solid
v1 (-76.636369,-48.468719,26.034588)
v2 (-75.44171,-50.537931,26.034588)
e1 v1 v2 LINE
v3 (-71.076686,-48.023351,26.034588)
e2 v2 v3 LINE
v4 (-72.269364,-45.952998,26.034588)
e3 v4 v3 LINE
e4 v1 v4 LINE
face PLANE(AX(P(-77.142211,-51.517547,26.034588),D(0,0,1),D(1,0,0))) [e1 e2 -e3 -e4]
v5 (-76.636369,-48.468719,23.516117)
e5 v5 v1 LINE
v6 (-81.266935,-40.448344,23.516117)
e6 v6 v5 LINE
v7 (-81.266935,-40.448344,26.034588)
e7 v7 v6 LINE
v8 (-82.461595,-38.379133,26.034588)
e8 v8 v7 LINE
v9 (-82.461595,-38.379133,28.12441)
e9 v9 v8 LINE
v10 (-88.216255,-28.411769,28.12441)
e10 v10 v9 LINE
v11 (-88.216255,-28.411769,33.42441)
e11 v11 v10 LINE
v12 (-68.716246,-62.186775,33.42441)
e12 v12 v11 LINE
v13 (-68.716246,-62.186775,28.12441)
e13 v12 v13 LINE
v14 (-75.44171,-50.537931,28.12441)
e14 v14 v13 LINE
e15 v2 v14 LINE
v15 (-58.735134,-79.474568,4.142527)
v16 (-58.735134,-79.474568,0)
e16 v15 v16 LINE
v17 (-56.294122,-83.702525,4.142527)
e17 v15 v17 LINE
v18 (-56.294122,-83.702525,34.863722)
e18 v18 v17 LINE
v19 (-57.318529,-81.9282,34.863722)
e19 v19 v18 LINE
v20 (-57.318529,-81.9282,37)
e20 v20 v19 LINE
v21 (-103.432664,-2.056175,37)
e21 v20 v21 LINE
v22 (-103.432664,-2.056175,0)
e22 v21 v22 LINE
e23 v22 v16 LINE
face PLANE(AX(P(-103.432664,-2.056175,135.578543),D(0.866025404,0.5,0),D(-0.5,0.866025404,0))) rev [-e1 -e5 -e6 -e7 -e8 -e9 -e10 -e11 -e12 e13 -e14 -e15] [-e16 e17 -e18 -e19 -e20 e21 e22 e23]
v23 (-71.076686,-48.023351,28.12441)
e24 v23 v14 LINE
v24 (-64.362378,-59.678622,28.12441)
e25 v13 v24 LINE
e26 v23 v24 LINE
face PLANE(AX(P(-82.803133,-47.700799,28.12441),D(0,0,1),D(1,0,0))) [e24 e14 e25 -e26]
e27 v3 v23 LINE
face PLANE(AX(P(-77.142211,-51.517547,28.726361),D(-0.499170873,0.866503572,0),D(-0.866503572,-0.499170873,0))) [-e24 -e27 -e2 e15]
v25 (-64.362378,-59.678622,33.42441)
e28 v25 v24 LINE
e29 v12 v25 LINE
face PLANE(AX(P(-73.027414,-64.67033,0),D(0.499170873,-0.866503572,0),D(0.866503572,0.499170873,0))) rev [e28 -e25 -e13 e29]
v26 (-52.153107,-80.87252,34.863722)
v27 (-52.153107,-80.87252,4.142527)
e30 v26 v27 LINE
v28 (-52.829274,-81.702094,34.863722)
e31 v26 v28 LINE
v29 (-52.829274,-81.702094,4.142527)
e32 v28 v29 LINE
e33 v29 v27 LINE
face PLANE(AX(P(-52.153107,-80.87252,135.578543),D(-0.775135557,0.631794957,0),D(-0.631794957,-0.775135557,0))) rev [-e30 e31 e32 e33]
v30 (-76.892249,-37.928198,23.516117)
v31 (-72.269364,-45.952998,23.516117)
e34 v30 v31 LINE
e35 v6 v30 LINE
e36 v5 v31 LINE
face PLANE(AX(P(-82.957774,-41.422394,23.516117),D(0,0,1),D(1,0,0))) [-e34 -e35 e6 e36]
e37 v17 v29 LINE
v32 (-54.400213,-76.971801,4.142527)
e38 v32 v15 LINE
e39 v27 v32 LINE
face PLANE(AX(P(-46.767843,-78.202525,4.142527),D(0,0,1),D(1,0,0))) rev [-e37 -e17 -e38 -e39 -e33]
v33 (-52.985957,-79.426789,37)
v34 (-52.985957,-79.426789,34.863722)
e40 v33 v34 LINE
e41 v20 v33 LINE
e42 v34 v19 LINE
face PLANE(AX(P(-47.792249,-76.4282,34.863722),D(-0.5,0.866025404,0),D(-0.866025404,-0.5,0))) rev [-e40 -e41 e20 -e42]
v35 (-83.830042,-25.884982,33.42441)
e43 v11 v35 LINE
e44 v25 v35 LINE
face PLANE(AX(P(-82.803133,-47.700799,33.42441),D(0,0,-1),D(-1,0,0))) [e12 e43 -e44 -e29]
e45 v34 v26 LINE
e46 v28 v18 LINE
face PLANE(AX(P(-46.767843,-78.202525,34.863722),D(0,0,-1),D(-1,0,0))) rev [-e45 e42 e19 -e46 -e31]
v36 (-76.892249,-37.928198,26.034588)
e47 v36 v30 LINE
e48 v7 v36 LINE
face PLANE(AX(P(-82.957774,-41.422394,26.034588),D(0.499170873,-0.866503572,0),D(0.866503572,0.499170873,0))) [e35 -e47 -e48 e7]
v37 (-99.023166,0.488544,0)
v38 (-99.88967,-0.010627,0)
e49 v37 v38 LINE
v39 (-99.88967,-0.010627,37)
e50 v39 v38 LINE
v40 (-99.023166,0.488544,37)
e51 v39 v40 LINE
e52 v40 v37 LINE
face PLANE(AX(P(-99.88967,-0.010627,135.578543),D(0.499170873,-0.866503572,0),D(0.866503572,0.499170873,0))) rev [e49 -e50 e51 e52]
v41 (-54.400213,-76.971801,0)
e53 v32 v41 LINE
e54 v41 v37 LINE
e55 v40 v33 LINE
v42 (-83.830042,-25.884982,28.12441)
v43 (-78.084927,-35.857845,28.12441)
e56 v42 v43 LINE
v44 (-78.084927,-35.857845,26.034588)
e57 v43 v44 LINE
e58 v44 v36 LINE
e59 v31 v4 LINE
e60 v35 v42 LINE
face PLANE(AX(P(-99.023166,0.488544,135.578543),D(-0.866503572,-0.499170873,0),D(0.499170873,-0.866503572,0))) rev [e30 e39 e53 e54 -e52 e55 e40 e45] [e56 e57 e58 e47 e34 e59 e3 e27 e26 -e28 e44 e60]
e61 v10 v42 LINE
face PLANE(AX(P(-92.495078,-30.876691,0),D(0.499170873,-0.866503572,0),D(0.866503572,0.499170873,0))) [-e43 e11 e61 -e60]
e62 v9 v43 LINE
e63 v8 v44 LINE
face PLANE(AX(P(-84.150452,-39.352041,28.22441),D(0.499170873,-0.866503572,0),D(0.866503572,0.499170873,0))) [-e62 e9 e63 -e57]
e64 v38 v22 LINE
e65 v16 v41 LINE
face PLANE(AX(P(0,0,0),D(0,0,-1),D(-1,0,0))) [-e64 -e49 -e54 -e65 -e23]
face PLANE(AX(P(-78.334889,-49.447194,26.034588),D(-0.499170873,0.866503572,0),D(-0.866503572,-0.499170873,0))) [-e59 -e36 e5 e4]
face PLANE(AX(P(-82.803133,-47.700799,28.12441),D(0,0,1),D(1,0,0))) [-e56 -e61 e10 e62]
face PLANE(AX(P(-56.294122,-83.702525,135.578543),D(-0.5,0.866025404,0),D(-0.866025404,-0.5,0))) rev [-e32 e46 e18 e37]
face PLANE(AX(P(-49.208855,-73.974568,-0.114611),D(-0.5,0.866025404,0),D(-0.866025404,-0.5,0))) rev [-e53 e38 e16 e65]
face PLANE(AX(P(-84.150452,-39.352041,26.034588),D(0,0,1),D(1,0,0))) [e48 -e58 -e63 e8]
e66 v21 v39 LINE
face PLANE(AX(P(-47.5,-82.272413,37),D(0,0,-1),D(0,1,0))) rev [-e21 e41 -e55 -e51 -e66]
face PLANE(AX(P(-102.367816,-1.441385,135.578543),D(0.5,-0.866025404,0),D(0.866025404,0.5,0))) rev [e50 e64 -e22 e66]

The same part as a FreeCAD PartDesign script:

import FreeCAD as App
import Part
import Sketcher
Q = App.Units.Quantity

doc = App.newDocument("Part")
body = doc.addObject("PartDesign::Body", "Body")

sketch1 = body.newObject("Sketcher::SketchObject", "Sketch")
sketch1.AttachmentSupport = (doc.getObject("XY_Plane"), [""])
sketch1.MapMode = "FlatFace"
sketch1.addGeometry([
    Part.LineSegment(App.Vector(-99.88967, -0.010627, 0), App.Vector(-102.367816, -1.441385, 0)),
    Part.LineSegment(App.Vector(-102.367816, -1.441385, 0), App.Vector(-103.432664, -2.056175, 0)),
    Part.LineSegment(App.Vector(-103.432664, -2.056175, 0), App.Vector(-56.294122, -83.702525, 0)),
    Part.LineSegment(App.Vector(-56.294122, -83.702525, 0), App.Vector(-52.829274, -81.702094, 0)),
    Part.LineSegment(App.Vector(-52.829274, -81.702094, 0), App.Vector(-52.153107, -80.87252, 0)),
    Part.LineSegment(App.Vector(-52.153107, -80.87252, 0), App.Vector(-99.023166, 0.488544, 0)),
    Part.LineSegment(App.Vector(-99.023166, 0.488544, 0), App.Vector(-99.88967, -0.010627, 0)),
], False)
sketch1.addConstraint([
    Sketcher.Constraint("Coincident", 0, 2, 1, 1),
    Sketcher.Constraint("Coincident", 1, 2, 2, 1),
    Sketcher.Constraint("Coincident", 2, 2, 3, 1),
    Sketcher.Constraint("Coincident", 3, 2, 4, 1),
    Sketcher.Constraint("Coincident", 4, 2, 5, 1),
    Sketcher.Constraint("Coincident", 5, 2, 6, 1),
    Sketcher.Constraint("Coincident", 6, 2, 0, 1),
    Sketcher.Constraint("Parallel", 0, 1),
    Sketcher.Constraint("Perpendicular", 1, 2),
    Sketcher.Constraint("Perpendicular", 2, 3),
    Sketcher.Constraint("Perpendicular", 5, 6),
    Sketcher.Constraint("Angle", 0, Q("-150 deg")),
    Sketcher.Constraint("Distance", 6, Q("1 mm")),
    Sketcher.Constraint("Distance", 1, Q("1.229581 mm")),
    Sketcher.Constraint("Distance", 3, Q("4.000862 mm")),
    Sketcher.Constraint("Distance", 4, Q("1.070231 mm")),
    Sketcher.Constraint("Distance", 5, Q("93.895821 mm")),
    Sketcher.Constraint("DistanceY", 4, 2, -1, 1, Q("80.87252 mm")),
    Sketcher.Constraint("DistanceX", 6, 2, -1, 1, Q("99.88967 mm")),
    Sketcher.Constraint("DistanceY", 2, 2, 1, 2, Q("81.64635 mm")),
    Sketcher.Constraint("DistanceX", 0, 2, 5, 2, Q("3.34465 mm")),
])
pad1 = body.newObject("PartDesign::Pad", "Pad")
pad1.Profile = sketch1
pad1.Length = 37

sketch2 = body.newObject("Sketcher::SketchObject", "Sketch001")
sketch2.Placement = App.Placement(App.Vector(-78.464848, -45.301701, 0), App.Rotation(App.Vector(0, 0, 1), App.Vector(-0.5, 0.866025404, 0), App.Vector(-0.866025404, -0.5, 0), "ZXY"))
sketch2.addGeometry([
    Part.LineSegment(App.Vector(4.142527, -39.459428, 0), App.Vector(-0.114611, -39.459428, 0)),
    Part.LineSegment(App.Vector(-0.114611, -39.459428, 0), App.Vector(-0.114611, -44.663143, 0)),
    Part.LineSegment(App.Vector(-0.114611, -44.663143, 0), App.Vector(4.142527, -44.663143, 0)),
    Part.LineSegment(App.Vector(4.142527, -44.663143, 0), App.Vector(4.142527, -39.459428, 0)),
    Part.LineSegment(App.Vector(34.863722, -42.292638, 0), App.Vector(34.863722, -44.984835, 0)),
    Part.LineSegment(App.Vector(34.863722, -44.984835, 0), App.Vector(37.49597, -44.984835, 0)),
    Part.LineSegment(App.Vector(37.49597, -44.984835, 0), App.Vector(37.49597, -42.292638, 0)),
    Part.LineSegment(App.Vector(37.49597, -42.292638, 0), App.Vector(34.863722, -42.292638, 0)),
], False)
sketch2.addConstraint([
    Sketcher.Constraint("Coincident", 0, 2, 1, 1),
    Sketcher.Constraint("Coincident", 1, 2, 2, 1),
    Sketcher.Constraint("Coincident", 2, 2, 3, 1),
    Sketcher.Constraint("Coincident", 3, 2, 0, 1),
    Sketcher.Constraint("Coincident", 4, 2, 5, 1),
    Sketcher.Constraint("Coincident", 5, 2, 6, 1),
    Sketcher.Constraint("Coincident", 6, 2, 7, 1),
    Sketcher.Constraint("Coincident", 7, 2, 4, 1),
    Sketcher.Constraint("Horizontal", 0),
    Sketcher.Constraint("Vertical", 1),
    Sketcher.Constraint("Horizontal", 2),
    Sketcher.Constraint("Vertical", 3),
    Sketcher.Constraint("Vertical", 4),
    Sketcher.Constraint("Horizontal", 5),
    Sketcher.Constraint("Vertical", 6),
    Sketcher.Constraint("Horizontal", 7),
    Sketcher.Constraint("DistanceX", 0, 2, 0, 1, Q("4.257138 mm")),
    Sketcher.Constraint("DistanceX", 5, 1, 5, 2, Q("2.632248 mm")),
    Sketcher.Constraint("DistanceY", 1, 2, 1, 1, Q("5.203715 mm")),
    Sketcher.Constraint("DistanceY", 4, 2, 4, 1, Q("2.692196 mm")),
    Sketcher.Constraint("DistanceX", 0, 2, -1, 1, Q("0.114611 mm")),
    Sketcher.Constraint("DistanceX", -1, 1, 5, 2, Q("37.49597 mm")),
    Sketcher.Constraint("DistanceY", 6, 2, -1, 1, Q("42.292638 mm")),
    Sketcher.Constraint("DistanceY", 4, 2, 2, 2, Q("0.321691 mm")),
])
pocket1 = body.newObject("PartDesign::Pocket", "Pocket")
pocket1.Profile = sketch2
pocket1.Length = 11

sketch3 = body.newObject("Sketcher::SketchObject", "Sketch002")
sketch3.Placement = App.Placement(App.Vector(-74.095776, -42.782556, 0), App.Rotation(App.Vector(0, 0, 1), App.Vector(-0.499170873, 0.866503572, 0), App.Vector(-0.866503572, -0.499170873, 0), "ZXY"))
sketch3.addGeometry([
    Part.LineSegment(App.Vector(28.12441, 19.50087, 0), App.Vector(28.12441, -19.49913, 0)),
    Part.LineSegment(App.Vector(28.12441, -19.49913, 0), App.Vector(33.42441, -19.49913, 0)),
    Part.LineSegment(App.Vector(33.42441, -19.49913, 0), App.Vector(33.42441, 19.50087, 0)),
    Part.LineSegment(App.Vector(33.42441, 19.50087, 0), App.Vector(28.12441, 19.50087, 0)),
], False)
sketch3.addConstraint([
    Sketcher.Constraint("Coincident", 0, 2, 1, 1),
    Sketcher.Constraint("Coincident", 1, 2, 2, 1),
    Sketcher.Constraint("Coincident", 2, 2, 3, 1),
    Sketcher.Constraint("Coincident", 3, 2, 0, 1),
    Sketcher.Constraint("Vertical", 0),
    Sketcher.Constraint("Horizontal", 1),
    Sketcher.Constraint("Vertical", 2),
    Sketcher.Constraint("Horizontal", 3),
    Sketcher.Constraint("DistanceY", 0, 2, 0, 1, Q("39 mm")),
    Sketcher.Constraint("DistanceX", 1, 1, 1, 2, Q("5.3 mm")),
    Sketcher.Constraint("DistanceX", -1, 1, 0, 2, Q("28.12441 mm")),
    Sketcher.Constraint("DistanceY", 0, 2, -1, 1, Q("19.49913 mm")),
])
pocket2 = body.newObject("PartDesign::Pocket", "Pocket001")
pocket2.Profile = sketch3
pocket2.Length = 10
pocket2.Reversed = True

sketch4 = body.newObject("Sketcher::SketchObject", "Sketch003")
sketch4.Placement = App.Placement(App.Vector(-74.095776, -42.782556, 0), App.Rotation(App.Vector(0, 0, 1), App.Vector(-0.499170873, 0.866503572, 0), App.Vector(-0.866503572, -0.499170873, 0), "ZXY"))
sketch4.addGeometry([
    Part.LineSegment(App.Vector(26.034588, 7.991555, 0), App.Vector(26.034588, 5.602236, 0)),
    Part.LineSegment(App.Vector(26.034588, 5.602236, 0), App.Vector(23.516117, 5.602236, 0)),
    Part.LineSegment(App.Vector(23.516117, 5.602236, 0), App.Vector(23.516117, -3.658891, 0)),
    Part.LineSegment(App.Vector(23.516117, -3.658891, 0), App.Vector(26.034588, -3.658891, 0)),
    Part.LineSegment(App.Vector(26.034588, -3.658891, 0), App.Vector(26.034588, -6.048209, 0)),
    Part.LineSegment(App.Vector(26.034588, -6.048209, 0), App.Vector(28.726361, -6.048209, 0)),
    Part.LineSegment(App.Vector(28.726361, -6.048209, 0), App.Vector(28.726361, 7.991555, 0)),
    Part.LineSegment(App.Vector(28.726361, 7.991555, 0), App.Vector(26.034588, 7.991555, 0)),
], False)
sketch4.addConstraint([
    Sketcher.Constraint("Coincident", 0, 2, 1, 1),
    Sketcher.Constraint("Coincident", 1, 2, 2, 1),
    Sketcher.Constraint("Coincident", 2, 2, 3, 1),
    Sketcher.Constraint("Coincident", 3, 2, 4, 1),
    Sketcher.Constraint("Coincident", 4, 2, 5, 1),
    Sketcher.Constraint("Coincident", 5, 2, 6, 1),
    Sketcher.Constraint("Coincident", 6, 2, 7, 1),
    Sketcher.Constraint("Coincident", 7, 2, 0, 1),
    Sketcher.Constraint("Vertical", 0),
    Sketcher.Constraint("Horizontal", 1),
    Sketcher.Constraint("Vertical", 2),
    Sketcher.Constraint("Horizontal", 3),
    Sketcher.Constraint("Vertical", 4),
    Sketcher.Constraint("Horizontal", 5),
    Sketcher.Constraint("Vertical", 6),
    Sketcher.Constraint("Horizontal", 7),
    Sketcher.Constraint("Vertical", 0, 2, 3, 2),
    Sketcher.Constraint("Equal", 0, 4),
    Sketcher.Constraint("DistanceX", 1, 2, 1, 1, Q("2.518471 mm")),
    Sketcher.Constraint("DistanceY", 0, 2, 0, 1, Q("2.389319 mm")),
    Sketcher.Constraint("DistanceX", 5, 1, 5, 2, Q("2.691774 mm")),
    Sketcher.Constraint("DistanceY", 2, 2, 2, 1, Q("9.261127 mm")),
    Sketcher.Constraint("DistanceY", 2, 2, -1, 1, Q("3.658891 mm")),
    Sketcher.Constraint("DistanceX", -1, 1, 5, 2, Q("28.726361 mm")),
])
pocket3 = body.newObject("PartDesign::Pocket", "Pocket002")
pocket3.Profile = sketch4
pocket3.Length = 7
pocket3.Reversed = True

doc.recompute()
